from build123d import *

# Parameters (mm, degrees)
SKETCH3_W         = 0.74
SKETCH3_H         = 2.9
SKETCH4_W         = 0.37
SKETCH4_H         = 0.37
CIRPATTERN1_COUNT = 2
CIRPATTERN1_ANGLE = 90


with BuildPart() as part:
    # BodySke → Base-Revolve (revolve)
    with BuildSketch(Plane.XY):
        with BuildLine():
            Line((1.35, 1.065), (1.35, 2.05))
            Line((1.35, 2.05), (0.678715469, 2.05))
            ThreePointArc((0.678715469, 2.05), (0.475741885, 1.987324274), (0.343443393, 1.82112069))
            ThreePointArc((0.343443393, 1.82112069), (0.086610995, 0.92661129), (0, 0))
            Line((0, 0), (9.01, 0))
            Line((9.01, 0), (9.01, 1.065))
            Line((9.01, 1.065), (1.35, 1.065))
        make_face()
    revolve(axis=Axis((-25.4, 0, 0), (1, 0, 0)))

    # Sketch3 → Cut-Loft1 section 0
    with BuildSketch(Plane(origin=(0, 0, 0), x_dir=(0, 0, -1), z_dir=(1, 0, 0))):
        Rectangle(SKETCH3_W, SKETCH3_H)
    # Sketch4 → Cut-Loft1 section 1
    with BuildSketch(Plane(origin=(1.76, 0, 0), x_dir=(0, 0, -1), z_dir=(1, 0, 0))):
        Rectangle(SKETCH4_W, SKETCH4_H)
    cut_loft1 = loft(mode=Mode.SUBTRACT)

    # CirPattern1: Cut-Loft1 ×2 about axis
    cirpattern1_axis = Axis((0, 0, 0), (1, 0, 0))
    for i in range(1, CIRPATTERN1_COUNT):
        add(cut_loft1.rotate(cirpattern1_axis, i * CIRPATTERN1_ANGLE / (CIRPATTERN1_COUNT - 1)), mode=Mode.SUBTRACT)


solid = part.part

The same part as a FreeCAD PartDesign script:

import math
import FreeCAD as App
import Part
import Sketcher

V = App.Vector


def add_polygon(sketch, points):
    """Adds a closed chain of lines whose ends are joined by coincident constraints."""
    first, n = sketch.GeometryCount, len(points)
    for a, b in zip(points, points[1:] + points[:1]):
        sketch.addGeometry(Part.LineSegment(App.Vector(*a, 0), App.Vector(*b, 0)), False)
    for i in range(n):
        sketch.addConstraint(Sketcher.Constraint("Coincident", first + i, 2, first + (i + 1) % n, 1))

doc = App.newDocument("Part")
params = doc.addObject("Spreadsheet::Sheet", "Params")
for row, (alias, value) in enumerate([
    ("sketch1_radius", "5 mm"),
    ("sketch1_radius2", "0.36 mm"),
    ("sketch1_width", "9.01 mm"),
    ("sketch1_width2", "7.66 mm"),
    ("revolution_angle", "360 deg"),
    ("sketch2_width", "2.9 mm"),
    ("sketch2_height", "0.74 mm"),
    ("sketch3_width", "0.37 mm"),
], start=1):
    params.set(f"A{row}", alias)
    params.set(f"B{row}", "=" + value)
    params.setAlias(f"B{row}", alias)

body = doc.addObject("PartDesign::Body", "Body")

sketch1 = body.newObject("Sketcher::SketchObject", "Sketch")
sketch1.AttachmentSupport = (doc.getObject("XY_Plane"), [""])
sketch1.MapMode = "FlatFace"
sketch1.addGeometry(Part.LineSegment(V(1.35, 1.06, 0), V(1.35, 2.05, 0)), False)
sketch1.addGeometry(Part.LineSegment(V(1.35, 2.05, 0), V(0.68, 2.05, 0)), False)
sketch1.addGeometry(Part.ArcOfCircle(Part.Circle(V(0.68, 1.69, 0), V(0, 0, 1), 0.36), math.radians(90), math.radians(159)), False)
sketch1.addGeometry(Part.ArcOfCircle(Part.Circle(V(5, 0, 0), V(0, 0, 1), 5), math.radians(159), math.radians(180)), False)
sketch1.addGeometry(Part.LineSegment(V(0, 0, 0), V(9.01, 0, 0)), False)
sketch1.addGeometry(Part.LineSegment(V(9.01, 0, 0), V(9.01, 1.06, 0)), False)
sketch1.addGeometry(Part.LineSegment(V(9.01, 1.06, 0), V(1.35, 1.06, 0)), False)
sketch1.addConstraint(Sketcher.Constraint("Coincident", 0, 2, 1, 1))
sketch1.addConstraint(Sketcher.Constraint("Tangent", 1, 2, 2, 1))
sketch1.addConstraint(Sketcher.Constraint("Tangent", 2, 2, 3, 1))
sketch1.addConstraint(Sketcher.Constraint("Coincident", 3, 2, 4, 1))
sketch1.addConstraint(Sketcher.Constraint("Coincident", 4, 2, 5, 1))
sketch1.addConstraint(Sketcher.Constraint("Coincident", 5, 2, 6, 1))
sketch1.addConstraint(Sketcher.Constraint("Coincident", 6, 2, 0, 1))
sketch1.addConstraint(Sketcher.Constraint("Vertical", 0))
sketch1.addConstraint(Sketcher.Constraint("Horizontal", 1))
sketch1.addConstraint(Sketcher.Constraint("Horizontal", 4))
sketch1.addConstraint(Sketcher.Constraint("Vertical", 5))
sketch1.addConstraint(Sketcher.Constraint("Horizontal", 6))
sketch1.addConstraint(Sketcher.Constraint("Coincident", 3, 2, -1, 1))
sketch1.addConstraint(Sketcher.Constraint("PointOnObject", 3, 3, -1))
sketch1.addConstraint(Sketcher.Constraint("Radius", 3, 5.0))
sketch1.addConstraint(Sketcher.Constraint("Radius", 2, 0.36))
sketch1.addConstraint(Sketcher.Constraint("DistanceX", 4, 1, 4, 2, 9.01))
sketch1.addConstraint(Sketcher.Constraint("DistanceX", 6, 2, 6, 1, 7.66))
sketch1.addConstraint(Sketcher.Constraint("DistanceY", 0, 1, 0, 2, 0.985))
sketch1.addConstraint(Sketcher.Constraint("DistanceY", 5, 1, 5, 2, 1.065))
sketch1.setExpression("Constraints[14]", "Params.sketch1_radius")
sketch1.setExpression("Constraints[15]", "Params.sketch1_radius2")
sketch1.setExpression("Constraints[16]", "Params.sketch1_width")
sketch1.setExpression("Constraints[17]", "Params.sketch1_width2")
revolution = body.newObject("PartDesign::Revolution", "Revolution")
revolution.Profile = sketch1
revolution.ReferenceAxis = (sketch1, ["H_Axis"])
revolution.setExpression("Angle", "Params.revolution_angle")

sketch2 = body.newObject("Sketcher::SketchObject", "Sketch001")
sketch2.AttachmentSupport = (doc.getObject("YZ_Plane"), [""])
sketch2.MapMode = "FlatFace"
add_polygon(sketch2, [(1.4, 0.4), (-1.4, 0.4), (-1.4, -0.4), (1.4, -0.4)])
sketch2.addConstraint(Sketcher.Constraint("Horizontal", 0))
sketch2.addConstraint(Sketcher.Constraint("Vertical", 1))
sketch2.addConstraint(Sketcher.Constraint("Horizontal", 2))
sketch2.addConstraint(Sketcher.Constraint("Vertical", 3))
sketch2.addConstraint(Sketcher.Constraint("Symmetric", 0, 2, 2, 2, -1, 1))
sketch2.addConstraint(Sketcher.Constraint("DistanceX", 0, 2, 0, 1, 2.9))
sketch2.addConstraint(Sketcher.Constraint("DistanceY", 1, 2, 1, 1, 0.74))
sketch2.setExpression("Constraints[9]", "Params.sketch2_width")
sketch2.setExpression("Constraints[10]", "Params.sketch2_height")

sketch3 = body.newObject("Sketcher::SketchObject", "Sketch002")
sketch3.AttachmentSupport = (doc.getObject("YZ_Plane"), [""])
sketch3.MapMode = "FlatFace"
sketch3.AttachmentOffset = App.Placement(V(0, 0, 1.76), App.Rotation())
add_polygon(sketch3, [(0.18, 0.18), (-0.18, 0.18), (-0.18, -0.18), (0.18, -0.18)])
sketch3.addConstraint(Sketcher.Constraint("Horizontal", 0))
sketch3.addConstraint(Sketcher.Constraint("Vertical", 1))
sketch3.addConstraint(Sketcher.Constraint("Horizontal", 2))
sketch3.addConstraint(Sketcher.Constraint("Vertical", 3))
sketch3.addConstraint(Sketcher.Constraint("Symmetric", 0, 2, 2, 2, -1, 1))
sketch3.addConstraint(Sketcher.Constraint("Equal", 2, 1))
sketch3.addConstraint(Sketcher.Constraint("DistanceX", 0, 2, 0, 1, 0.37))
sketch3.setExpression("Constraints[10]", "Params.sketch3_width")

subtractiveloft = body.newObject("PartDesign::SubtractiveLoft", "SubtractiveLoft")
subtractiveloft.Profile = sketch2
subtractiveloft.Sections = [sketch3]
doc.recompute()

polarpattern = body.newObject("PartDesign::PolarPattern", "PolarPattern")
polarpattern.Originals = [subtractiveloft]
polarpattern.Axis = (doc.getObject("X_Axis"), [""])
polarpattern.Angle = 90
polarpattern.Occurrences = 2
body.Tip = polarpattern

doc.recompute()
